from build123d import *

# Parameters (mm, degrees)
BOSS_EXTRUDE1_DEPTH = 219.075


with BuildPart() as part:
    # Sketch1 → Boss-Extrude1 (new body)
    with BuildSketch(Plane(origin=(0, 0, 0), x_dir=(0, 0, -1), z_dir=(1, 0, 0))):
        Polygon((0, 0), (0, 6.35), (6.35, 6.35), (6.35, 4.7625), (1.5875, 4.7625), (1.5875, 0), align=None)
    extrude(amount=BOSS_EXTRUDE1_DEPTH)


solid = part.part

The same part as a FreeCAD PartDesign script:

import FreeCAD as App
import Part
import Sketcher
Q = App.Units.Quantity

doc = App.newDocument("Part")
body = doc.addObject("PartDesign::Body", "Body")

# Sketch on YZ plane
sketch1 = body.newObject("Sketcher::SketchObject", "Sketch")
sketch1.AttachmentSupport = (doc.getObject("YZ_Plane"), [""])
sketch1.MapMode = "FlatFace"
sketch1.addGeometry([
    Part.LineSegment(App.Vector(6.35, 0, 0), App.Vector(0, 0, 0)),  # 0
    Part.LineSegment(App.Vector(0, 0, 0), App.Vector(0, -1.5875, 0)),  # 1
    Part.LineSegment(App.Vector(0, -1.5875, 0), App.Vector(4.7625, -1.5875, 0)),  # 2
    Part.LineSegment(App.Vector(4.7625, -1.5875, 0), App.Vector(4.7625, -6.35, 0)),  # 3
    Part.LineSegment(App.Vector(4.7625, -6.35, 0), App.Vector(6.35, -6.35, 0)),  # 4
    Part.LineSegment(App.Vector(6.35, -6.35, 0), App.Vector(6.35, 0, 0)),  # 5
], False)
sketch1.addConstraint([
    Sketcher.Constraint("Coincident", 0, 2, 1, 1),
    Sketcher.Constraint("Coincident", 1, 2, 2, 1),
    Sketcher.Constraint("Coincident", 2, 2, 3, 1),
    Sketcher.Constraint("Coincident", 3, 2, 4, 1),
    Sketcher.Constraint("Coincident", 4, 2, 5, 1),
    Sketcher.Constraint("Coincident", 5, 2, 0, 1),
    Sketcher.Constraint("Horizontal", 0),
    Sketcher.Constraint("Vertical", 1),
    Sketcher.Constraint("Horizontal", 2),
    Sketcher.Constraint("Vertical", 3),
    Sketcher.Constraint("Horizontal", 4),
    Sketcher.Constraint("Vertical", 5),
    Sketcher.Constraint("Coincident", 0, 2, -1, 1),
    Sketcher.Constraint("Equal", 4, 1),
    Sketcher.Constraint("Equal", 2, 3),
    Sketcher.Constraint("DistanceX", 0, 2, 0, 1, Q("0.25 in")),
    Sketcher.Constraint("DistanceX", 2, 1, 2, 2, Q("0.1875 in")),
])
pad1 = body.newObject("PartDesign::Pad", "Pad")
pad1.Profile = sketch1
pad1.Length = Q("8.625 in")

doc.recompute()
